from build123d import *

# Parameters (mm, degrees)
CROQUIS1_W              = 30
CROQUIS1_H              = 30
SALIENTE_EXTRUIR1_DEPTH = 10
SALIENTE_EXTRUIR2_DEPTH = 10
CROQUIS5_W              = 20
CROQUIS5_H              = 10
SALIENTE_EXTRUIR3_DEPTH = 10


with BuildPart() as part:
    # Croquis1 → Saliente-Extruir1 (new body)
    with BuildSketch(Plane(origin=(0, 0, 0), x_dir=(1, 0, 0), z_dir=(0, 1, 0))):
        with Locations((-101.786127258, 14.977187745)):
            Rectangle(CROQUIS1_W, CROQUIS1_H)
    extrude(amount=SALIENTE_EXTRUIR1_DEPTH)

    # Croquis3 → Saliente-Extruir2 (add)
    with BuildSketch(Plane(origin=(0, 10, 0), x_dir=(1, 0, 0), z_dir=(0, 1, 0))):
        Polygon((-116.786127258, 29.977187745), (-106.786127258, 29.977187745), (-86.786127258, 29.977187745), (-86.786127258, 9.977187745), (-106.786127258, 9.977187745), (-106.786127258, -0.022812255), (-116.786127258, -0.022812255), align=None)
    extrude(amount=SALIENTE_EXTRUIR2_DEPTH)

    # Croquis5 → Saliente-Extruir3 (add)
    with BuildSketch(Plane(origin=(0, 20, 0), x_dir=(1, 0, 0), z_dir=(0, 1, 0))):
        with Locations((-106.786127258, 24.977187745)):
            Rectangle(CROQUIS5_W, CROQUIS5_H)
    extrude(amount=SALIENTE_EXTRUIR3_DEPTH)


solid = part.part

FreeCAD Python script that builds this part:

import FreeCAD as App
import Part
import Sketcher

V = App.Vector


def add_polygon(sketch, points):
    """Adds a closed chain of lines whose ends are joined by coincident constraints."""
    first, n = sketch.GeometryCount, len(points)
    for a, b in zip(points, points[1:] + points[:1]):
        sketch.addGeometry(Part.LineSegment(App.Vector(*a, 0), App.Vector(*b, 0)), False)
    for i in range(n):
        sketch.addConstraint(Sketcher.Constraint("Coincident", first + i, 2, first + (i + 1) % n, 1))

doc = App.newDocument("Part")
body = doc.addObject("PartDesign::Body", "Body")

# Sketch on XZ plane
sketch1 = body.newObject("Sketcher::SketchObject", "Sketch")
sketch1.AttachmentSupport = (doc.getObject("XZ_Plane"), [""])
sketch1.MapMode = "FlatFace"
add_polygon(sketch1, [(-117, -30), (-117, 0), (-87, 0), (-87, -30)])  # lines 0-3
sketch1.addConstraint([
    Sketcher.Constraint("Vertical", 0),
    Sketcher.Constraint("Horizontal", 1),
    Sketcher.Constraint("Vertical", 2),
    Sketcher.Constraint("Horizontal", 3),
    Sketcher.Constraint("Equal", 3, 0),
    Sketcher.Constraint("DistanceX", 1, 1, 1, 2, 30.0),
    Sketcher.Constraint("DistanceX", 0, 2, -1, 1, 116.786127),
    Sketcher.Constraint("DistanceY", -1, 1, 0, 2, 0.022812),
])
pad1 = body.newObject("PartDesign::Pad", "Pad")
pad1.Profile = sketch1
pad1.Length = 10
pad1.Reversed = True

# Sketch on XZ plane
sketch2 = body.newObject("Sketcher::SketchObject", "Sketch001")
sketch2.AttachmentSupport = (doc.getObject("XZ_Plane"), [""])
sketch2.MapMode = "FlatFace"
sketch2.AttachmentOffset = App.Placement(V(0, 0, -10), App.Rotation())
add_polygon(sketch2, [(-87, -30), (-117, -30), (-117, 0), (-107, 0), (-107, -10), (-87, -10)])  # lines 0-5
sketch2.addConstraint([
    Sketcher.Constraint("Horizontal", 0),
    Sketcher.Constraint("Vertical", 1),
    Sketcher.Constraint("Horizontal", 2),
    Sketcher.Constraint("Vertical", 3),
    Sketcher.Constraint("Horizontal", 4),
    Sketcher.Constraint("Vertical", 5),
    Sketcher.Constraint("Equal", 0, 1),
    Sketcher.Constraint("Equal", 2, 3),
    Sketcher.Constraint("DistanceX", 0, 2, 0, 1, 30.0),
    Sketcher.Constraint("DistanceX", 2, 1, 2, 2, 10.0),
    Sketcher.Constraint("DistanceX", 0, 2, -1, 1, 116.786127),
    Sketcher.Constraint("DistanceY", 0, 2, -1, 1, 29.977188),
])
pad2 = body.newObject("PartDesign::Pad", "Pad001")
pad2.Profile = sketch2
pad2.Length = 10
pad2.Reversed = True

# Sketch on XZ plane
sketch3 = body.newObject("Sketcher::SketchObject", "Sketch002")
sketch3.AttachmentSupport = (doc.getObject("XZ_Plane"), [""])
sketch3.MapMode = "FlatFace"
sketch3.AttachmentOffset = App.Placement(V(0, 0, -20), App.Rotation())
add_polygon(sketch3, [(-117, -30), (-117, -20), (-97, -20), (-97, -30)])  # lines 0-3
sketch3.addConstraint([
    Sketcher.Constraint("Vertical", 0),
    Sketcher.Constraint("Horizontal", 1),
    Sketcher.Constraint("Vertical", 2),
    Sketcher.Constraint("Horizontal", 3),
    Sketcher.Constraint("DistanceX", 1, 1, 1, 2, 20.0),
    Sketcher.Constraint("DistanceY", 0, 1, 0, 2, 10.0),
    Sketcher.Constraint("DistanceX", 0, 2, -1, 1, 116.786127),
    Sketcher.Constraint("DistanceY", 0, 2, -1, 1, 19.977188),
])
pad3 = body.newObject("PartDesign::Pad", "Pad002")
pad3.Profile = sketch3
pad3.Length = 10
pad3.Reversed = True

doc.recompute()
